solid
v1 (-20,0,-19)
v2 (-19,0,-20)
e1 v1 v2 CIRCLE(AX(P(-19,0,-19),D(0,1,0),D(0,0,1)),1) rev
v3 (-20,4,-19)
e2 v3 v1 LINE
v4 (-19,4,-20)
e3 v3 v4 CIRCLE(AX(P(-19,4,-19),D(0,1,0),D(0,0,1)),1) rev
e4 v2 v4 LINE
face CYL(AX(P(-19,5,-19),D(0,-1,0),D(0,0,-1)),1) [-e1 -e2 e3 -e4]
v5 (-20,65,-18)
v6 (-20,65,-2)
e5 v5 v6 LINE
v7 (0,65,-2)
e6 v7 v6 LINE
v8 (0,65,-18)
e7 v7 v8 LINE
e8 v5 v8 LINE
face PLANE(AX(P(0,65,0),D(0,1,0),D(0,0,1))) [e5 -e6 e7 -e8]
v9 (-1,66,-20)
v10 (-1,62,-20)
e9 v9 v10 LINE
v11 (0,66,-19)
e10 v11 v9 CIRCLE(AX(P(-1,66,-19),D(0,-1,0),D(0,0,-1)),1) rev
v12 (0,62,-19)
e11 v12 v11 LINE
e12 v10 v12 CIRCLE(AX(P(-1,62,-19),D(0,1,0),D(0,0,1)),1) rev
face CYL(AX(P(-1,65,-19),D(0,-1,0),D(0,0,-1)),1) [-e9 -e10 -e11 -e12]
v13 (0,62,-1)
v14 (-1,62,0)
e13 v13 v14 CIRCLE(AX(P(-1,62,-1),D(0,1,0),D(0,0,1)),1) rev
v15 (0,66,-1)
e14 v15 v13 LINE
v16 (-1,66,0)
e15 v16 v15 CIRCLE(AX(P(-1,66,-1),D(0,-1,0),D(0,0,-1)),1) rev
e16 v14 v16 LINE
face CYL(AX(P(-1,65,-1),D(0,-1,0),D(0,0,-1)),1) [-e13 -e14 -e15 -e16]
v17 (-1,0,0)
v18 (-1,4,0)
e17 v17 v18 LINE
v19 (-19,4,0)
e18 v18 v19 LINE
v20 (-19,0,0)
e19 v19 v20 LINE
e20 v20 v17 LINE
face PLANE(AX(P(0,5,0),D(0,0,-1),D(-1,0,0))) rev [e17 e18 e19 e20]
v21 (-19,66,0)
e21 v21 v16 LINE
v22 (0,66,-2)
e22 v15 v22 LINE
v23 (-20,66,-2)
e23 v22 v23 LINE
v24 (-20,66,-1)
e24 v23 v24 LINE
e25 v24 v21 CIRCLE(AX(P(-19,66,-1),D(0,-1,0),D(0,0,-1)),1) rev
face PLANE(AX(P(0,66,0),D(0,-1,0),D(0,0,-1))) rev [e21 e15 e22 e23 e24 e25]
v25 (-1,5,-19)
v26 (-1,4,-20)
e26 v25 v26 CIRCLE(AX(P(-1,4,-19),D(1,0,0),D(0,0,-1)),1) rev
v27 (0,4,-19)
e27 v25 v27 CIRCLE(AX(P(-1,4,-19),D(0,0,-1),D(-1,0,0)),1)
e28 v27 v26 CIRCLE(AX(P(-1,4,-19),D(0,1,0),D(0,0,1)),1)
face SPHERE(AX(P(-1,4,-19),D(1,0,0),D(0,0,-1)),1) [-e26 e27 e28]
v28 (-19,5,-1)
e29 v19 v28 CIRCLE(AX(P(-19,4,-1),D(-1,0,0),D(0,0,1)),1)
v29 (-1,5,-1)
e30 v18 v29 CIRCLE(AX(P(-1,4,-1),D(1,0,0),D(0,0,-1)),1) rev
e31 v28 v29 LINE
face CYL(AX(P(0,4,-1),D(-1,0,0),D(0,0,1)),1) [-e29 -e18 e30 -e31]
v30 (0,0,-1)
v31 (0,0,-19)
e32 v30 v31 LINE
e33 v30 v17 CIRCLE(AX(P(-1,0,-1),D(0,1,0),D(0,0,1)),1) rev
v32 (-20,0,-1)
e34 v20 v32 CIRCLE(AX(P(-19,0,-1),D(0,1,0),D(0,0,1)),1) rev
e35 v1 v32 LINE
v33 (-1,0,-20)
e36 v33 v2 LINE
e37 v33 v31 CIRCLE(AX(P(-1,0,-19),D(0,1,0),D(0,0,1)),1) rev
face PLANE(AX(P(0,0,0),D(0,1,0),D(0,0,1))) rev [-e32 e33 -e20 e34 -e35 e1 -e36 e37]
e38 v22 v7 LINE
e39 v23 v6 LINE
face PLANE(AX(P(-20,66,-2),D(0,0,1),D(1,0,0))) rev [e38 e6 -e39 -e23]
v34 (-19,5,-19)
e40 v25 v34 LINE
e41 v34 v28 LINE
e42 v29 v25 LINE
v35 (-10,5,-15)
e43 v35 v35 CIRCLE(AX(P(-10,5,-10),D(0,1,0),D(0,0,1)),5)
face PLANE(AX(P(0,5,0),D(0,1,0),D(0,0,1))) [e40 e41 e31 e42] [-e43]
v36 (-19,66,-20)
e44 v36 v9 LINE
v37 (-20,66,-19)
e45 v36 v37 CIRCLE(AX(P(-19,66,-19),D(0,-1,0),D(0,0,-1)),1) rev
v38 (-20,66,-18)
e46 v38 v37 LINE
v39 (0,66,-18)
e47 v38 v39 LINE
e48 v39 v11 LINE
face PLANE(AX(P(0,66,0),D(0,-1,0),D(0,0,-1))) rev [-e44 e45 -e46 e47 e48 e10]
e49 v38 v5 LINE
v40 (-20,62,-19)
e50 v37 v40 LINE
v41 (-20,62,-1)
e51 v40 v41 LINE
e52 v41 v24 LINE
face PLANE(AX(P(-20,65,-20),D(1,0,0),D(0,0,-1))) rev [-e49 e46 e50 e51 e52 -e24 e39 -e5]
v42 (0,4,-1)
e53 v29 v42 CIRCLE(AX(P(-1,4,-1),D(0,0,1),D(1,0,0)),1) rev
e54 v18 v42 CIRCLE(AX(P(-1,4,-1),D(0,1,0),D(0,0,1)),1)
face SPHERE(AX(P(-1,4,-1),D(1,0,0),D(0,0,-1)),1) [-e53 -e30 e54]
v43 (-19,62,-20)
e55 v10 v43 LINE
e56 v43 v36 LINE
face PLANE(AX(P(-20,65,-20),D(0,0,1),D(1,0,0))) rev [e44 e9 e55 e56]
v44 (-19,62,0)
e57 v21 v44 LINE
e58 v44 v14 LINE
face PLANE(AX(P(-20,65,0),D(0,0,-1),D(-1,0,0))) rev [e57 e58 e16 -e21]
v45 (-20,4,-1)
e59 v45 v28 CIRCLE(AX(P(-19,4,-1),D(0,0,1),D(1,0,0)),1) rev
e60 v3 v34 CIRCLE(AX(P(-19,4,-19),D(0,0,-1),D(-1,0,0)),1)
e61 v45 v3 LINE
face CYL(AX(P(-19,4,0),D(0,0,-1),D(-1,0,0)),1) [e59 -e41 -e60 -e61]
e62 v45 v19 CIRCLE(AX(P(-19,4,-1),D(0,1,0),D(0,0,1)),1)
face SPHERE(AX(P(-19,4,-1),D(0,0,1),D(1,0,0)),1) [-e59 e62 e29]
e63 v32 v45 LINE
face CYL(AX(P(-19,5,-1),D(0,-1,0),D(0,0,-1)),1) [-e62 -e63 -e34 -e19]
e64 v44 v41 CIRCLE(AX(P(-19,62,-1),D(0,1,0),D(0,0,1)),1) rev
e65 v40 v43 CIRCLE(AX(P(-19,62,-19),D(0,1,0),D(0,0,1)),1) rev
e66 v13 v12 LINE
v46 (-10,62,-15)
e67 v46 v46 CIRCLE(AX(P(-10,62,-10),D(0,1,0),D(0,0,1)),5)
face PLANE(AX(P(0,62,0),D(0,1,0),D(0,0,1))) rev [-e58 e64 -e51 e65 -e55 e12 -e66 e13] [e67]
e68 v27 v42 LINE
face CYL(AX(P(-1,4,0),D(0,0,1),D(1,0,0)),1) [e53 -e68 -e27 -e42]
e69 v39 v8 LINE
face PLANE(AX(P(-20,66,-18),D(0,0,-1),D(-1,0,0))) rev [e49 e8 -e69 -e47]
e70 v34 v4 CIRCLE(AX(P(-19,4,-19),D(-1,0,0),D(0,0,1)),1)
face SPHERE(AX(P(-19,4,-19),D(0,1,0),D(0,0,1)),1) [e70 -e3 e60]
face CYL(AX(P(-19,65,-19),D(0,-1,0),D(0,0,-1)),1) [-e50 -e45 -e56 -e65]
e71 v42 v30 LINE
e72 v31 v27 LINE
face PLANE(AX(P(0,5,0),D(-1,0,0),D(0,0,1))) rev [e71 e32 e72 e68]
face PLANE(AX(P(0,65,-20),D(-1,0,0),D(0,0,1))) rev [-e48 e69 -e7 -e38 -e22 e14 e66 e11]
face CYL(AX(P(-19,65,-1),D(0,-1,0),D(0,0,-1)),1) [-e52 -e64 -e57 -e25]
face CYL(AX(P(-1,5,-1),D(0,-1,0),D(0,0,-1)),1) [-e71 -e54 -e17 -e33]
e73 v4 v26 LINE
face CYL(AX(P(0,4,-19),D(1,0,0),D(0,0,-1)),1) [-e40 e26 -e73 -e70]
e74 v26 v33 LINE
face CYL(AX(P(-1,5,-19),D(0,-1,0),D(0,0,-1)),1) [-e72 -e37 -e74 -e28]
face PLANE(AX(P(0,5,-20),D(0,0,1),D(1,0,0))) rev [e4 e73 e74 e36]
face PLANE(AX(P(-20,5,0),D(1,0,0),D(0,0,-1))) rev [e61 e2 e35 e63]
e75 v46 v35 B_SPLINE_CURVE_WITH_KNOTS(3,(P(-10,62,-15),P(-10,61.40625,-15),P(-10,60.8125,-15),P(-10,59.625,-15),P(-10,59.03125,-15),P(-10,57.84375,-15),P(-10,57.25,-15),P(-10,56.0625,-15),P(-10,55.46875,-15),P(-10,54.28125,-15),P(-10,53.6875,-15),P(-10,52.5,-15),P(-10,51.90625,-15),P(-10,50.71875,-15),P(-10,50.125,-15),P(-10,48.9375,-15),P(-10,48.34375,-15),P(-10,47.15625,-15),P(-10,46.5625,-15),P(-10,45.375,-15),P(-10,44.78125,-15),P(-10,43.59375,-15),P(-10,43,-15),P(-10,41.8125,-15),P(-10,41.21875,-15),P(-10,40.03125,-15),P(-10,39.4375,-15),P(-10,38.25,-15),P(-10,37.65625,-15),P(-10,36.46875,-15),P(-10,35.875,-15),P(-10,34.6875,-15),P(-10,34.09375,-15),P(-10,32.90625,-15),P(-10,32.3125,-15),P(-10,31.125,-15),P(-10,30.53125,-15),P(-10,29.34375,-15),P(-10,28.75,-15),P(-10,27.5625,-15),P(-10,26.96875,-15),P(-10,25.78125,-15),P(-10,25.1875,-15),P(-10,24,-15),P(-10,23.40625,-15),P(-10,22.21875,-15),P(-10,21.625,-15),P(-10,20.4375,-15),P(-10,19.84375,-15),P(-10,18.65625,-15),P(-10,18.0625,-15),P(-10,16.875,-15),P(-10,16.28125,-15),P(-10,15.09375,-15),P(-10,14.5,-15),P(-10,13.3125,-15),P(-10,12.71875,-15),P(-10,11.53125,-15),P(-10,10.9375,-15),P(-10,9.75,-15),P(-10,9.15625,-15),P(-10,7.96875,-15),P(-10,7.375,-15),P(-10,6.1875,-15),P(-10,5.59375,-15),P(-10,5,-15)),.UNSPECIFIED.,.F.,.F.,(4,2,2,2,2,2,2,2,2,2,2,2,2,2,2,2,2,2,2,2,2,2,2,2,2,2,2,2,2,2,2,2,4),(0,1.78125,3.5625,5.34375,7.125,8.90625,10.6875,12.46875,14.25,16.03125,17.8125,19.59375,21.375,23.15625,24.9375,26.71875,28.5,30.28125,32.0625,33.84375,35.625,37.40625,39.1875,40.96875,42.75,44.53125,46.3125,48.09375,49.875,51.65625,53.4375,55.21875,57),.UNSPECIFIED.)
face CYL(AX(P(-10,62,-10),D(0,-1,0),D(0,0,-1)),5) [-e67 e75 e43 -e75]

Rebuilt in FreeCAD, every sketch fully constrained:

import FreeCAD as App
import Part
import Sketcher

V = App.Vector
Q = App.Units.Quantity


def edges_at(feature, points):
    """Names of the edges that pass closest to the given points."""
    edges = feature.Shape.Edges
    near = lambda p: min(range(len(edges)), key=lambda i: edges[i].distToShape(Part.Vertex(*p))[0])
    return sorted({f"Edge{near(p) + 1}" for p in points})


def add_polygon(sketch, points):
    """Adds a closed chain of lines whose ends are joined by coincident constraints."""
    first, n = sketch.GeometryCount, len(points)
    for a, b in zip(points, points[1:] + points[:1]):
        sketch.addGeometry(Part.LineSegment(App.Vector(*a, 0), App.Vector(*b, 0)), False)
    for i in range(n):
        sketch.addConstraint(Sketcher.Constraint("Coincident", first + i, 2, first + (i + 1) % n, 1))

doc = App.newDocument("Part")
params = doc.addObject("Spreadsheet::Sheet", "Params")
for row, (alias, value) in enumerate([
    ("sketch1_width", "20 mm"),
    ("pad1_length", "5 mm"),
    ("sketch2_diameter", "10 mm"),
    ("pad2_length", "57 mm"),
    ("sketch3_width", "20 mm"),
    ("pad3_length", "3 mm"),
    ("sketch4_width", "20 mm"),
    ("sketch4_height", "2 mm"),
    ("pad4_length", "1 mm"),
    ("sketch5_width", "20 mm"),
    ("sketch5_height", "2 mm"),
    ("pad5_length", "1 mm"),
    ("fillet_radius", "1 mm"),
    ("fillet2_radius", "1 mm"),
    ("fillet3_radius", "1 mm"),
], start=1):
    params.set(f"A{row}", alias)
    params.set(f"B{row}", "=" + value)
    params.setAlias(f"B{row}", alias)

body = doc.addObject("PartDesign::Body", "Body")

# Sketch on XZ plane
sketch1 = body.newObject("Sketcher::SketchObject", "Sketch")
sketch1.AttachmentSupport = (doc.getObject("XZ_Plane"), [""])
sketch1.MapMode = "FlatFace"
add_polygon(sketch1, [(-20, -20), (-20, 0), (0, 0), (0, -20)])  # lines 0-3
sketch1.addConstraint([
    Sketcher.Constraint("Vertical", 0),
    Sketcher.Constraint("Horizontal", 1),
    Sketcher.Constraint("Vertical", 2),
    Sketcher.Constraint("Horizontal", 3),
    Sketcher.Constraint("Coincident", 1, 2, -1, 1),
    Sketcher.Constraint("Equal", 3, 0),
    Sketcher.Constraint("DistanceX", 1, 1, 1, 2, Q("20 mm")),
])
sketch1.setExpression("Constraints[10]", "Params.sketch1_width")
pad1 = body.newObject("PartDesign::Pad", "Pad")
pad1.Profile = sketch1
pad1.setExpression("Length", "Params.pad1_length")
pad1.Reversed = True

# Sketch on XZ plane
sketch2 = body.newObject("Sketcher::SketchObject", "Sketch001")
sketch2.AttachmentSupport = (doc.getObject("XZ_Plane"), [""])
sketch2.MapMode = "FlatFace"
sketch2.AttachmentOffset = App.Placement(V(0, 0, -5), App.Rotation())
sketch2.addGeometry(Part.Circle(V(-10, -10, 0), V(0, 0, 1), 5), False)
sketch2.addConstraint([
    Sketcher.Constraint("Diameter", 0, Q("10 mm")),
    Sketcher.Constraint("DistanceX", 0, 3, -1, 1, Q("10 mm")),
    Sketcher.Constraint("DistanceY", 0, 3, -1, 1, Q("10 mm")),
])
sketch2.setExpression("Constraints[0]", "Params.sketch2_diameter")
pad2 = body.newObject("PartDesign::Pad", "Pad001")
pad2.Profile = sketch2
pad2.setExpression("Length", "Params.pad2_length")
pad2.Reversed = True

# Sketch on XZ plane
sketch3 = body.newObject("Sketcher::SketchObject", "Sketch002")
sketch3.AttachmentSupport = (doc.getObject("XZ_Plane"), [""])
sketch3.MapMode = "FlatFace"
sketch3.AttachmentOffset = App.Placement(V(0, 0, -62), App.Rotation())
add_polygon(sketch3, [(-20, -20), (-20, 0), (0, 0), (0, -20)])  # lines 0-3
sketch3.addConstraint([
    Sketcher.Constraint("Vertical", 0),
    Sketcher.Constraint("Horizontal", 1),
    Sketcher.Constraint("Vertical", 2),
    Sketcher.Constraint("Horizontal", 3),
    Sketcher.Constraint("Coincident", 1, 2, -1, 1),
    Sketcher.Constraint("Equal", 3, 0),
    Sketcher.Constraint("DistanceX", 1, 1, 1, 2, Q("20 mm")),
])
sketch3.setExpression("Constraints[10]", "Params.sketch3_width")
pad3 = body.newObject("PartDesign::Pad", "Pad002")
pad3.Profile = sketch3
pad3.setExpression("Length", "Params.pad3_length")
pad3.Reversed = True

# Sketch on XZ plane
sketch4 = body.newObject("Sketcher::SketchObject", "Sketch003")
sketch4.AttachmentSupport = (doc.getObject("XZ_Plane"), [""])
sketch4.MapMode = "FlatFace"
sketch4.AttachmentOffset = App.Placement(V(0, 0, -65), App.Rotation())
add_polygon(sketch4, [(-20, -20), (-20, -18), (0, -18), (0, -20)])  # lines 0-3
sketch4.addConstraint([
    Sketcher.Constraint("Vertical", 0),
    Sketcher.Constraint("Horizontal", 1),
    Sketcher.Constraint("Vertical", 2),
    Sketcher.Constraint("Horizontal", 3),
    Sketcher.Constraint("PointOnObject", 1, 2, -2),
    Sketcher.Constraint("DistanceX", 1, 1, 1, 2, Q("20 mm")),
    Sketcher.Constraint("DistanceY", 0, 1, 0, 2, Q("2 mm")),
    Sketcher.Constraint("DistanceY", 0, 2, -1, 1, Q("18 mm")),
])
sketch4.setExpression("Constraints[9]", "Params.sketch4_width")
sketch4.setExpression("Constraints[10]", "Params.sketch4_height")
pad4 = body.newObject("PartDesign::Pad", "Pad003")
pad4.Profile = sketch4
pad4.setExpression("Length", "Params.pad4_length")
pad4.Reversed = True

# Sketch on XZ plane
sketch5 = body.newObject("Sketcher::SketchObject", "Sketch004")
sketch5.AttachmentSupport = (doc.getObject("XZ_Plane"), [""])
sketch5.MapMode = "FlatFace"
sketch5.AttachmentOffset = App.Placement(V(0, 0, -65), App.Rotation())
add_polygon(sketch5, [(-20, -2), (-20, 0), (0, 0), (0, -2)])  # lines 0-3
sketch5.addConstraint([
    Sketcher.Constraint("Vertical", 0),
    Sketcher.Constraint("Horizontal", 1),
    Sketcher.Constraint("Vertical", 2),
    Sketcher.Constraint("Horizontal", 3),
    Sketcher.Constraint("Coincident", 1, 2, -1, 1),
    Sketcher.Constraint("DistanceX", 1, 1, 1, 2, Q("20 mm")),
    Sketcher.Constraint("DistanceY", 0, 1, 0, 2, Q("2 mm")),
])
sketch5.setExpression("Constraints[9]", "Params.sketch5_width")
sketch5.setExpression("Constraints[10]", "Params.sketch5_height")
pad5 = body.newObject("PartDesign::Pad", "Pad004")
pad5.Profile = sketch5
pad5.setExpression("Length", "Params.pad5_length")
pad5.Reversed = True
doc.recompute()

fillet = body.newObject("PartDesign::Fillet", "Fillet")
fillet.Base = (pad5, edges_at(pad5, [(0, 64, 0)]))
fillet.setExpression("Radius", "Params.fillet_radius")
doc.recompute()

fillet2 = body.newObject("PartDesign::Fillet", "Fillet001")
fillet2.Base = (fillet, edges_at(fillet, [(-20, 64, -20), (-20, 64, 0), (0, 64, -20)]))
fillet2.setExpression("Radius", "Params.fillet2_radius")
doc.recompute()

fillet3 = body.newObject("PartDesign::Fillet", "Fillet002")
fillet3.Base = (fillet2, edges_at(fillet2, [
    (-20, 5, -10),
    (-10, 5, 0),
    (0, 5, -10),
    (0, 2.5, 0),
    (-20, 2.5, 0),
    (-20, 2.5, -20),
    (0, 2.5, -20),
    (-10, 5, -20),
]))
fillet3.setExpression("Radius", "Params.fillet3_radius")

doc.recompute()
